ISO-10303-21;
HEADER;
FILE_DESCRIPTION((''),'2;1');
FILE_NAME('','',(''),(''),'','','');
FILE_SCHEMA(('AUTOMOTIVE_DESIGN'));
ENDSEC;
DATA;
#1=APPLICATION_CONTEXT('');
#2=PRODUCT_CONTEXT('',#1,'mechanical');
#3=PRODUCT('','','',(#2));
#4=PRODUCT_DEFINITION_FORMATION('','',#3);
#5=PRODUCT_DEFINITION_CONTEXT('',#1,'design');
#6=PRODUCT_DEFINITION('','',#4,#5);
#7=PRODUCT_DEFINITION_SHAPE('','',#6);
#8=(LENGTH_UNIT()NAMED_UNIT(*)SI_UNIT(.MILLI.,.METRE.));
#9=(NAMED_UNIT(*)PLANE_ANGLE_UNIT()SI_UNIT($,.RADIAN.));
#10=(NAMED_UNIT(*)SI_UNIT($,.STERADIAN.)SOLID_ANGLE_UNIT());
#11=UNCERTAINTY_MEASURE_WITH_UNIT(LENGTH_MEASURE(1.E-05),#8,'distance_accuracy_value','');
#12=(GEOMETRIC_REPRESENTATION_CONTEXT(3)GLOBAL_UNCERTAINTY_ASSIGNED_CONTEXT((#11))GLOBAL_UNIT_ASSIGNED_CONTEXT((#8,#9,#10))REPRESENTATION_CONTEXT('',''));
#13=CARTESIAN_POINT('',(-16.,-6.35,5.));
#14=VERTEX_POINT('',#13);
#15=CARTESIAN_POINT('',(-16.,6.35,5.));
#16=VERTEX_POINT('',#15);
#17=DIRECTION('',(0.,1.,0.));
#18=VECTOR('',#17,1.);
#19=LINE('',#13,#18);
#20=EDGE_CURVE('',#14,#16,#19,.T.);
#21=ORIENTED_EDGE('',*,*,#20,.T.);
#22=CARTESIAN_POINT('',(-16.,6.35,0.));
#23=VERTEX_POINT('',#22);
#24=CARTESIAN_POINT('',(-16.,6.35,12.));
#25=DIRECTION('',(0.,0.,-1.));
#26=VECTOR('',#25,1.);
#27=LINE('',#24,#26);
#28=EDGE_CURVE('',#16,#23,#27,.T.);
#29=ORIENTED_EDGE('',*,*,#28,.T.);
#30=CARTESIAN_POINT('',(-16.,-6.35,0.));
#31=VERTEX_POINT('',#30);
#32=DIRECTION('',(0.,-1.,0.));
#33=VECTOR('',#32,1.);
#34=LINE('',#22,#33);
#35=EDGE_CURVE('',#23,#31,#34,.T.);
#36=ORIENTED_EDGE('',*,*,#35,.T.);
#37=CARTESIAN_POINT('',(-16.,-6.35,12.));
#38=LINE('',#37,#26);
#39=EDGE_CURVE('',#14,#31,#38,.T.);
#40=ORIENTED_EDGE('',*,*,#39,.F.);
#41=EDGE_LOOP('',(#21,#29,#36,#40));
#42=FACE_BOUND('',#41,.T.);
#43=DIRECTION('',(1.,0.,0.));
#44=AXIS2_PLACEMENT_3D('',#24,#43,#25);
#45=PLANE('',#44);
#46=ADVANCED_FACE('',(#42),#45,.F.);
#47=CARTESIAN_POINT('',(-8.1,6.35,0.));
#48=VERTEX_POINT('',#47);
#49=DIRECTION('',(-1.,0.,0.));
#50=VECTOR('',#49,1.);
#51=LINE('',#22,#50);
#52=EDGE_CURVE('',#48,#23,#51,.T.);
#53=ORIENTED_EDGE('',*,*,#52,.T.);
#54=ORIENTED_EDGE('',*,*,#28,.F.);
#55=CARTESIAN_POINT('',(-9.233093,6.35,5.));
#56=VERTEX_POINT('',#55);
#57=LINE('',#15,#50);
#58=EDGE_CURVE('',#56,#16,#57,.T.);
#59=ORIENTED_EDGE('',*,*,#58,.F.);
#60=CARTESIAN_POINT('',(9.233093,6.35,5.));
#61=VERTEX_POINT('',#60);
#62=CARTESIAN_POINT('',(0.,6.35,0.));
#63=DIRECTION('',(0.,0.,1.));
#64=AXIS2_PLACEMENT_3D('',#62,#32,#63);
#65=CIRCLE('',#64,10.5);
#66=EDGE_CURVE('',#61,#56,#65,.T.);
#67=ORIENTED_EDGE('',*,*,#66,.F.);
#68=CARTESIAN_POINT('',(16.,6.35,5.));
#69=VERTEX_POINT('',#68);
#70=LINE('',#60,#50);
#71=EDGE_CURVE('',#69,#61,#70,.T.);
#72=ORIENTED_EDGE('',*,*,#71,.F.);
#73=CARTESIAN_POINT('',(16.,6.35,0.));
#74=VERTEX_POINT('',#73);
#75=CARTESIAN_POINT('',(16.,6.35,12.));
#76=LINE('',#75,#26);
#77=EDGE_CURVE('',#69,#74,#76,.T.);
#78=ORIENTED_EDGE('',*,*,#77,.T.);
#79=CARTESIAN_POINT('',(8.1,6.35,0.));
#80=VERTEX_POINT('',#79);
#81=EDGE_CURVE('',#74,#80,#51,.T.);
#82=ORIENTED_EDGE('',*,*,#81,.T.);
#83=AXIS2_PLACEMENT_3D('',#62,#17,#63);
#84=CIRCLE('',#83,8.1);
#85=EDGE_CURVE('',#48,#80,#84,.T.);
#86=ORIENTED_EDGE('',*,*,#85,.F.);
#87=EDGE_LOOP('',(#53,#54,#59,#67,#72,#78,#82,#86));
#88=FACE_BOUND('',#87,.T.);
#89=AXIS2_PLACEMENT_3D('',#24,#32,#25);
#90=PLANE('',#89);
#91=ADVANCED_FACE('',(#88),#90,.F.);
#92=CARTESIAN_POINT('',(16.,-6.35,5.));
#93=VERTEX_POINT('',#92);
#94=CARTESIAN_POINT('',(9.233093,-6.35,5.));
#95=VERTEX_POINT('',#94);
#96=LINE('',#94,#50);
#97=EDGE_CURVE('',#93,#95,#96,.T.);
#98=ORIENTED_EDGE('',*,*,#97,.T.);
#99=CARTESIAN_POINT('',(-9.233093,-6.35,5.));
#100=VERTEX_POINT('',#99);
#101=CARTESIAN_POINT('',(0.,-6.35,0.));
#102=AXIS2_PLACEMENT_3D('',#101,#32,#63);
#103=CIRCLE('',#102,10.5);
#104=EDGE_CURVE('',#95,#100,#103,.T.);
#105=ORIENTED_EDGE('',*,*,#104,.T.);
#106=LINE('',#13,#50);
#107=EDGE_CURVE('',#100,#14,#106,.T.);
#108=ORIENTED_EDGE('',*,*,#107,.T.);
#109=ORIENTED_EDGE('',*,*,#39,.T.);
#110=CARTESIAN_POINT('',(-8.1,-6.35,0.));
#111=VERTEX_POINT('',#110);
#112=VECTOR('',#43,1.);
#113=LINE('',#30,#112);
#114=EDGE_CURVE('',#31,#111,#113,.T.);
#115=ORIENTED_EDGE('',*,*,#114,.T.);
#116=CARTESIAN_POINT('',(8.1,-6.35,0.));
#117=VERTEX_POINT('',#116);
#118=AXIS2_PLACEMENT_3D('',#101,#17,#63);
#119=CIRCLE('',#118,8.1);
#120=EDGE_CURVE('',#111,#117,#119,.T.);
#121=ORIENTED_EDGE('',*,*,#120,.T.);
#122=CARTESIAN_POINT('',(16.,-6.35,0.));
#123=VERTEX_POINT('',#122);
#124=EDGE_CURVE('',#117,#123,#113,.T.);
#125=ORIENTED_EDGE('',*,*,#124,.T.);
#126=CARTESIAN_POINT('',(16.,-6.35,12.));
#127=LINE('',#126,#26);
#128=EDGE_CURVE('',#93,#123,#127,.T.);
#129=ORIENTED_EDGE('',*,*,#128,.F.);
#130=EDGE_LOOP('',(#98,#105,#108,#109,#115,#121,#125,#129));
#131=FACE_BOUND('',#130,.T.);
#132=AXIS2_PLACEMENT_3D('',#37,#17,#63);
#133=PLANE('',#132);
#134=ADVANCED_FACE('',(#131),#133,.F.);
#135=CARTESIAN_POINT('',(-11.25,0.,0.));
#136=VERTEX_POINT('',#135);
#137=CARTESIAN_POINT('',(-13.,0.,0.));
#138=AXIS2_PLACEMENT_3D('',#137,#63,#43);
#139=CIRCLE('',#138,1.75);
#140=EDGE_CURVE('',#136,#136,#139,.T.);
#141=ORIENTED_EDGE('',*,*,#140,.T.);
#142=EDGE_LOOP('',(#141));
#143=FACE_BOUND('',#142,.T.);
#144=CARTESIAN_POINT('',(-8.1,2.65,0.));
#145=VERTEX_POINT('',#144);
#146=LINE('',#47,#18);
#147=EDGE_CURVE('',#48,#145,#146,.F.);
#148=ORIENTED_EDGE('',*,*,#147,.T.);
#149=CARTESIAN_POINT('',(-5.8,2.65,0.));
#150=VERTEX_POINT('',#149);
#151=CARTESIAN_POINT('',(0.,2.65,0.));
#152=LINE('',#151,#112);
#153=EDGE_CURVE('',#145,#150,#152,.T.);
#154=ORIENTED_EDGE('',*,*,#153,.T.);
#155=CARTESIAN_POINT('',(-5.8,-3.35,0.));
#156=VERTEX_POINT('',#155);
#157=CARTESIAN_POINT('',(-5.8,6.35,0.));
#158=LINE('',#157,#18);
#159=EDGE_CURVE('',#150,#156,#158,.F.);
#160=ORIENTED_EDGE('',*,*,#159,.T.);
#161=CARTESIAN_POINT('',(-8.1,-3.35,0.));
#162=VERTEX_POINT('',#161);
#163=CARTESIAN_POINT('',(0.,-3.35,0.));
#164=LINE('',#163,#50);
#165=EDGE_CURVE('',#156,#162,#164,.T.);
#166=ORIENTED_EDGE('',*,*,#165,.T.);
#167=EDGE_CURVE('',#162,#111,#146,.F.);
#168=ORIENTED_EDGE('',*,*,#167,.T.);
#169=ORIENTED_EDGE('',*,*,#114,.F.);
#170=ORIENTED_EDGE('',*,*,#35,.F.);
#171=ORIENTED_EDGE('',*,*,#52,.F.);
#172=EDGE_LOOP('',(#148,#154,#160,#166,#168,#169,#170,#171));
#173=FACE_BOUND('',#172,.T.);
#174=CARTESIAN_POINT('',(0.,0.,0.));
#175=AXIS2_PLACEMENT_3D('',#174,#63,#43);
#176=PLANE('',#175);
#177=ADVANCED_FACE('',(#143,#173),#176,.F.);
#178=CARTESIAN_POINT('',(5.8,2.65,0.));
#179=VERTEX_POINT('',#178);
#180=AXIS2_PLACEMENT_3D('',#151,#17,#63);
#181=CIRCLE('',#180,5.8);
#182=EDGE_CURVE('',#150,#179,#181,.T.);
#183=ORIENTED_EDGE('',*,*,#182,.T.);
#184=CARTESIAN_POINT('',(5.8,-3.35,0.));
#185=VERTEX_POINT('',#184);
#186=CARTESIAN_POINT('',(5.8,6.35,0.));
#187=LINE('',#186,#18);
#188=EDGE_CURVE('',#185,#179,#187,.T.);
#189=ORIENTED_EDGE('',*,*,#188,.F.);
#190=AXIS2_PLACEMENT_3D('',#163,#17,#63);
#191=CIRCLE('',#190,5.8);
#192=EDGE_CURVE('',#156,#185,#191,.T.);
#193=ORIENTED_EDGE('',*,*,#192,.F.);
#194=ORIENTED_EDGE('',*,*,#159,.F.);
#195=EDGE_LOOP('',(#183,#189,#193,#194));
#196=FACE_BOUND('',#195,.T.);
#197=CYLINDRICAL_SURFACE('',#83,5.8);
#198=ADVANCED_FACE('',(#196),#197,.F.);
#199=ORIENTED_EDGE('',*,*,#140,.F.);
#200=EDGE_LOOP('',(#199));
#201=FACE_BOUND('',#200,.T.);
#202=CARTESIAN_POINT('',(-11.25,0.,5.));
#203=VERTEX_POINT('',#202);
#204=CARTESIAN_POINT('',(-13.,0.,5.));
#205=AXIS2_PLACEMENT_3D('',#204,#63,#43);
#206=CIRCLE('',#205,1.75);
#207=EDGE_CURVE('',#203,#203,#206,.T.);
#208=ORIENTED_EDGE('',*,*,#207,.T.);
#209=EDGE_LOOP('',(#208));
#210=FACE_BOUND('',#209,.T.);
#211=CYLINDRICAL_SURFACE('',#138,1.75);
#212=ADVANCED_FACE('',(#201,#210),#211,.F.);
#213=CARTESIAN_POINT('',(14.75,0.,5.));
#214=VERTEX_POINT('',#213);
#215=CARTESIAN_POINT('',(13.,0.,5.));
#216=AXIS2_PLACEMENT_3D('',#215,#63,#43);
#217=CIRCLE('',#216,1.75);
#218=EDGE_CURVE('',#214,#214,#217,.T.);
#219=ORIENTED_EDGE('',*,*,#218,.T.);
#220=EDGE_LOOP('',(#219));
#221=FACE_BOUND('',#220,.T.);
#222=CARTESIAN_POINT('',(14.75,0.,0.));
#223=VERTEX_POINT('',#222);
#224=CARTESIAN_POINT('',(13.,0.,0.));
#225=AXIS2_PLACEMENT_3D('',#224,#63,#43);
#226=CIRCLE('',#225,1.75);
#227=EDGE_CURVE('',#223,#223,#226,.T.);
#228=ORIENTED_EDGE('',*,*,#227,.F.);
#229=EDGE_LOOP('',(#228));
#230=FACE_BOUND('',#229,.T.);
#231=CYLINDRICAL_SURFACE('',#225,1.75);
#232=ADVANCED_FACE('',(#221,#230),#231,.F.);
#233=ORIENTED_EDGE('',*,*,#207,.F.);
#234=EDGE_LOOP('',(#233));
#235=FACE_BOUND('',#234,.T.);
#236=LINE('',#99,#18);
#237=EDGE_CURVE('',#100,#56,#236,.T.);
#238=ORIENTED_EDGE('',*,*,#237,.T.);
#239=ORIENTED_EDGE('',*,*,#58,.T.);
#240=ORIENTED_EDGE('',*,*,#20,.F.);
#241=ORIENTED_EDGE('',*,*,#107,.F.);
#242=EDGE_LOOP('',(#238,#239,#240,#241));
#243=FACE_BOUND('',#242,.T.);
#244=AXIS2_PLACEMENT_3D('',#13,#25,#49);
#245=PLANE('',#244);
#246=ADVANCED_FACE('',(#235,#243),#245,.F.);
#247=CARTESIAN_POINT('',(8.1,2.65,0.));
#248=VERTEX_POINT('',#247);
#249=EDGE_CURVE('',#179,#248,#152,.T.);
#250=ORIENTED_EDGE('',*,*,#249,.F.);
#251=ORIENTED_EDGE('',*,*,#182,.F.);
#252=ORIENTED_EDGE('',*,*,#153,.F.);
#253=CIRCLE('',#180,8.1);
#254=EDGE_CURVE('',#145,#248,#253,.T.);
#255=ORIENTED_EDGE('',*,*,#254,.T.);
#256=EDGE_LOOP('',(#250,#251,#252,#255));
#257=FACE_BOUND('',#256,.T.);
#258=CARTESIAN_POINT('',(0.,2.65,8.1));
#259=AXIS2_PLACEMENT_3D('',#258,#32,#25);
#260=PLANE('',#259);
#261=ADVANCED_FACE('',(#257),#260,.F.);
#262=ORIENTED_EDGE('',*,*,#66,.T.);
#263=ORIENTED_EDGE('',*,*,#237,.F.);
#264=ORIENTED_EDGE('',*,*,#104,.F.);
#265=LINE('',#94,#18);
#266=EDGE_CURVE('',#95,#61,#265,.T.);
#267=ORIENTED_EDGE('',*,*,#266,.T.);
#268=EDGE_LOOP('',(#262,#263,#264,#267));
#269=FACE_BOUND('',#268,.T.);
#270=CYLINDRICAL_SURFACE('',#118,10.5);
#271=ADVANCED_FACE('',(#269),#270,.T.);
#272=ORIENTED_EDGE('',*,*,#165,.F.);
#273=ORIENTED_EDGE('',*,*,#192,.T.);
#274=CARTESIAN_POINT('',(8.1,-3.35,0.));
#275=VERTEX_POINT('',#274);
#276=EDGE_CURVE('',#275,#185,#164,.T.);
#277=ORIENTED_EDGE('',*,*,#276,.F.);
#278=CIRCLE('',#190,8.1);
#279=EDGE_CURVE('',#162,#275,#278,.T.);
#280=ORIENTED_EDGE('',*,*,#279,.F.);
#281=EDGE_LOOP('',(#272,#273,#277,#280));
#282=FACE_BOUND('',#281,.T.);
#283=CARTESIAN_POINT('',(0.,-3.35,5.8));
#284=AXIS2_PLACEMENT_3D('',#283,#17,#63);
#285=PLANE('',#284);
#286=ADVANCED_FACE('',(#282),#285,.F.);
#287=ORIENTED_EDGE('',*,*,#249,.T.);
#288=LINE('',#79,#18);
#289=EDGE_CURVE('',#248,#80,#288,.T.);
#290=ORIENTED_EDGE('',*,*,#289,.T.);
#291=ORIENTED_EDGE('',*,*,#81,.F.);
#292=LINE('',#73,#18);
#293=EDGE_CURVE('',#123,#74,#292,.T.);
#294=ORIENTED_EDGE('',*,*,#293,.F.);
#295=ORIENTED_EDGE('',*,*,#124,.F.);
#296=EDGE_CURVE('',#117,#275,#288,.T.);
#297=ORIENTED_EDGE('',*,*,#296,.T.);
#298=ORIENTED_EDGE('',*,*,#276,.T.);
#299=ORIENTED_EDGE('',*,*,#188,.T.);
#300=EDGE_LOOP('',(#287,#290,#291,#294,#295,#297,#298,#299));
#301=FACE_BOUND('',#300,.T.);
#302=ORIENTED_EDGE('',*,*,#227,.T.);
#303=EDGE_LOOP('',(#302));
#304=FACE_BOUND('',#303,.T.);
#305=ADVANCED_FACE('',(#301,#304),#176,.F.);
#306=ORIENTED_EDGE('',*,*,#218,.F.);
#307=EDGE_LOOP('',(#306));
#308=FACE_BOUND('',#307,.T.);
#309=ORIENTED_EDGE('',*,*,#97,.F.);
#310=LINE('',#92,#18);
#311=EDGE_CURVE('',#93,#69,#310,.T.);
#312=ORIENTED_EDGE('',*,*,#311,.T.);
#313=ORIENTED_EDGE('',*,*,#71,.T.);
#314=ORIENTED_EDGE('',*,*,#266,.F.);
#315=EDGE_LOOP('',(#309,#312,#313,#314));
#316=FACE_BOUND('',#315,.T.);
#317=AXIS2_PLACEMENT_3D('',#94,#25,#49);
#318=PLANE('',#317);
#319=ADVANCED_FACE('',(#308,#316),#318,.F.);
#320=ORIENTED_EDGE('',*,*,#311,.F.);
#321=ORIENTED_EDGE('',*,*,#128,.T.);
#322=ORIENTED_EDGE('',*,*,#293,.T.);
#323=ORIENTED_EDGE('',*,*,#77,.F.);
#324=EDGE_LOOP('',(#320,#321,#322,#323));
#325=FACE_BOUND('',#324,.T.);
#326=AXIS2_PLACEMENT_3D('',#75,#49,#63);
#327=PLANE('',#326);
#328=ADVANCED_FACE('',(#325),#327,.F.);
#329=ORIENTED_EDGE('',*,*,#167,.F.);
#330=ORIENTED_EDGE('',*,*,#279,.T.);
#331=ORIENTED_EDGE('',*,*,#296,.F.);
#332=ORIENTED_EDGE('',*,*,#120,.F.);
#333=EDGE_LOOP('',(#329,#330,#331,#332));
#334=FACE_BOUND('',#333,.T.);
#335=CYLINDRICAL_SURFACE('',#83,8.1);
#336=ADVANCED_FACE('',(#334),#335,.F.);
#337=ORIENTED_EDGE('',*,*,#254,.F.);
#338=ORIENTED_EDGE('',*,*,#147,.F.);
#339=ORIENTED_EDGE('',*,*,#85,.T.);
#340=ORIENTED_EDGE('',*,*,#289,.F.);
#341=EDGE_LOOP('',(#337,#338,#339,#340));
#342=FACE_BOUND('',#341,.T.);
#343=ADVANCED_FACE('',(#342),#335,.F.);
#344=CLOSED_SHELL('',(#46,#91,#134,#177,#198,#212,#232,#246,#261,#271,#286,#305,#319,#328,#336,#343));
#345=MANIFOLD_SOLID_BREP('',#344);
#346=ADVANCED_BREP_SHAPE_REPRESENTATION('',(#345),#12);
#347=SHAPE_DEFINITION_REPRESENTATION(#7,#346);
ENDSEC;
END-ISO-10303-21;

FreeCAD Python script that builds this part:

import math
import FreeCAD as App
import Part
import Sketcher
from FreeCAD import Vector


def add_polygon(sketch, points):
    """Adds a closed chain of lines whose ends are joined by coincident constraints."""
    first, n = sketch.GeometryCount, len(points)
    for a, b in zip(points, points[1:] + points[:1]):
        sketch.addGeometry(Part.LineSegment(App.Vector(*a, 0), App.Vector(*b, 0)), False)
    for i in range(n):
        sketch.addConstraint(Sketcher.Constraint("Coincident", first + i, 2, first + (i + 1) % n, 1))

doc = App.newDocument("Part")
params = doc.addObject("Spreadsheet::Sheet", "Params")
for row, (alias, value) in enumerate([
    ("sketch1_width", "32 mm"),
    ("sketch1_height", "12.7 mm"),
    ("pad1_length", "12 mm"),
    ("sketch2_width", "6 mm"),
    ("sketch2_width2", "3 mm"),
    ("sketch2_width3", "3.7 mm"),
    ("sketch2_height", "8.1 mm"),
    ("sketch2_height2", "2.3 mm"),
    ("groove_angle", "360 deg"),
    ("sketch3_radius", "10.5 mm"),
    ("sketch3_width", "32 mm"),
    ("sketch3_height", "10 mm"),
    ("sketch4_diameter", "3.5 mm"),
], start=1):
    params.set(f"A{row}", alias)
    params.set(f"B{row}", "=" + value)
    params.setAlias(f"B{row}", alias)

body = doc.addObject("PartDesign::Body", "Body")

sketch1 = body.newObject("Sketcher::SketchObject", "Sketch")
sketch1.AttachmentSupport = (doc.getObject("XY_Plane"), [""])
sketch1.MapMode = "FlatFace"
add_polygon(sketch1, [(-16, 6), (-16, -6), (16, -6), (16, 6)])
sketch1.addConstraint([
    Sketcher.Constraint("Vertical", 0),
    Sketcher.Constraint("Horizontal", 1),
    Sketcher.Constraint("Vertical", 2),
    Sketcher.Constraint("Horizontal", 3),
    Sketcher.Constraint("Symmetric", 0, 2, 2, 2, -1, 1),
    Sketcher.Constraint("DistanceX", 1, 1, 1, 2, 32.0),
    Sketcher.Constraint("DistanceY", 0, 2, 0, 1, 12.7),
])
sketch1.setExpression("Constraints[9]", "Params.sketch1_width")
sketch1.setExpression("Constraints[10]", "Params.sketch1_height")
pad1 = body.newObject("PartDesign::Pad", "Pad")
pad1.Profile = sketch1
pad1.setExpression("Length", "Params.pad1_length")

sketch2 = body.newObject("Sketcher::SketchObject", "Sketch001")
sketch2.AttachmentSupport = (doc.getObject("YZ_Plane"), [""])
sketch2.MapMode = "FlatFace"
add_polygon(sketch2, [(6.3, 0), (6.3, 8.1), (2.6, 8.1), (2.6, 5.8), (-3.4, 5.8), (-3.4, 8.1), (-6.3, 8.1), (-6.3, 0)])
sketch2.addConstraint([
    Sketcher.Constraint("Vertical", 0),
    Sketcher.Constraint("Horizontal", 1),
    Sketcher.Constraint("Vertical", 2),
    Sketcher.Constraint("Horizontal", 3),
    Sketcher.Constraint("Vertical", 4),
    Sketcher.Constraint("Horizontal", 5),
    Sketcher.Constraint("Vertical", 6),
    Sketcher.Constraint("Horizontal", 7),
    Sketcher.Constraint("Symmetric", 6, 2, 7, 2, -1, 1),
    Sketcher.Constraint("Horizontal", 1, 2, 4, 2),
    Sketcher.Constraint("DistanceX", 3, 2, 3, 1, 6.0),
    Sketcher.Constraint("DistanceX", 5, 2, 5, 1, 3.0),
    Sketcher.Constraint("DistanceX", 1, 2, 1, 1, 3.7),
    Sketcher.Constraint("DistanceY", 0, 1, 0, 2, 8.1),
    Sketcher.Constraint("DistanceY", 2, 2, 2, 1, 2.3),
])
sketch2.setExpression("Constraints[18]", "Params.sketch2_width")
sketch2.setExpression("Constraints[19]", "Params.sketch2_width2")
sketch2.setExpression("Constraints[20]", "Params.sketch2_width3")
sketch2.setExpression("Constraints[21]", "Params.sketch2_height")
sketch2.setExpression("Constraints[22]", "Params.sketch2_height2")
groove = body.newObject("PartDesign::Groove", "Groove")
groove.Profile = sketch2
groove.ReferenceAxis = (sketch2, ["H_Axis"])
groove.setExpression("Angle", "Params.groove_angle")

sketch3 = body.newObject("Sketcher::SketchObject", "Sketch002")
sketch3.AttachmentSupport = (doc.getObject("XZ_Plane"), [""])
sketch3.MapMode = "FlatFace"
sketch3.AttachmentOffset = App.Placement(Vector(0, 0, -6.35), App.Rotation())
sketch3.addGeometry([
    Part.LineSegment(Vector(-9, 5, 0), Vector(-16, 5, 0)),
    Part.LineSegment(Vector(-16, 5, 0), Vector(-16, 15, 0)),
    Part.LineSegment(Vector(-16, 15, 0), Vector(16, 15, 0)),
    Part.LineSegment(Vector(16, 15, 0), Vector(16, 5, 0)),
    Part.LineSegment(Vector(16, 5, 0), Vector(9, 5, 0)),
    Part.ArcOfCircle(Part.Circle(Vector(0, 0, 0), Vector(0, 0, 1), 10), math.radians(28), math.radians(152)),
], False)
sketch3.addConstraint([
    Sketcher.Constraint("Coincident", 0, 2, 1, 1),
    Sketcher.Constraint("Coincident", 1, 2, 2, 1),
    Sketcher.Constraint("Coincident", 2, 2, 3, 1),
    Sketcher.Constraint("Coincident", 3, 2, 4, 1),
    Sketcher.Constraint("Coincident", 4, 2, 5, 1),
    Sketcher.Constraint("Coincident", 5, 2, 0, 1),
    Sketcher.Constraint("Horizontal", 0),
    Sketcher.Constraint("Vertical", 1),
    Sketcher.Constraint("Horizontal", 2),
    Sketcher.Constraint("Vertical", 3),
    Sketcher.Constraint("Horizontal", 4),
    Sketcher.Constraint("Coincident", 5, 3, -1, 1),
    Sketcher.Constraint("Symmetric", 0, 2, 3, 2, -2),
    Sketcher.Constraint("Radius", 5, 10.5),
    Sketcher.Constraint("DistanceX", 2, 1, 2, 2, 32.0),
    Sketcher.Constraint("DistanceY", 1, 1, 1, 2, 10.0),
    Sketcher.Constraint("DistanceY", -1, 1, 0, 2, 5.0),
])
sketch3.setExpression("Constraints[13]", "Params.sketch3_radius")
sketch3.setExpression("Constraints[14]", "Params.sketch3_width")
sketch3.setExpression("Constraints[15]", "Params.sketch3_height")
pocket1 = body.newObject("PartDesign::Pocket", "Pocket")
pocket1.Profile = sketch3
pocket1.Type = "ThroughAll"
pocket1.Reversed = True

sketch4 = body.newObject("Sketcher::SketchObject", "Sketch003")
sketch4.AttachmentSupport = (doc.getObject("XY_Plane"), [""])
sketch4.MapMode = "FlatFace"
sketch4.AttachmentOffset = App.Placement(Vector(0, 0, 5), App.Rotation())
sketch4.addGeometry([
    Part.Circle(Vector(-13, 0, 0), Vector(0, 0, 1), 1.8),
    Part.Circle(Vector(13, 0, 0), Vector(0, 0, 1), 1.8),
], False)
sketch4.addConstraint([
    Sketcher.Constraint("Equal", 0, 1),
    Sketcher.Constraint("Symmetric", 0, 3, 1, 3, -1, 1),
    Sketcher.Constraint("PointOnObject", 0, 3, -1),
    Sketcher.Constraint("Diameter", 0, 3.5),
    Sketcher.Constraint("DistanceX", 0, 3, -1, 1, 13.0),
])
sketch4.setExpression("Constraints[3]", "Params.sketch4_diameter")
pocket2 = body.newObject("PartDesign::Pocket", "Pocket001")
pocket2.Profile = sketch4
pocket2.Type = "ThroughAll"

doc.recompute()
